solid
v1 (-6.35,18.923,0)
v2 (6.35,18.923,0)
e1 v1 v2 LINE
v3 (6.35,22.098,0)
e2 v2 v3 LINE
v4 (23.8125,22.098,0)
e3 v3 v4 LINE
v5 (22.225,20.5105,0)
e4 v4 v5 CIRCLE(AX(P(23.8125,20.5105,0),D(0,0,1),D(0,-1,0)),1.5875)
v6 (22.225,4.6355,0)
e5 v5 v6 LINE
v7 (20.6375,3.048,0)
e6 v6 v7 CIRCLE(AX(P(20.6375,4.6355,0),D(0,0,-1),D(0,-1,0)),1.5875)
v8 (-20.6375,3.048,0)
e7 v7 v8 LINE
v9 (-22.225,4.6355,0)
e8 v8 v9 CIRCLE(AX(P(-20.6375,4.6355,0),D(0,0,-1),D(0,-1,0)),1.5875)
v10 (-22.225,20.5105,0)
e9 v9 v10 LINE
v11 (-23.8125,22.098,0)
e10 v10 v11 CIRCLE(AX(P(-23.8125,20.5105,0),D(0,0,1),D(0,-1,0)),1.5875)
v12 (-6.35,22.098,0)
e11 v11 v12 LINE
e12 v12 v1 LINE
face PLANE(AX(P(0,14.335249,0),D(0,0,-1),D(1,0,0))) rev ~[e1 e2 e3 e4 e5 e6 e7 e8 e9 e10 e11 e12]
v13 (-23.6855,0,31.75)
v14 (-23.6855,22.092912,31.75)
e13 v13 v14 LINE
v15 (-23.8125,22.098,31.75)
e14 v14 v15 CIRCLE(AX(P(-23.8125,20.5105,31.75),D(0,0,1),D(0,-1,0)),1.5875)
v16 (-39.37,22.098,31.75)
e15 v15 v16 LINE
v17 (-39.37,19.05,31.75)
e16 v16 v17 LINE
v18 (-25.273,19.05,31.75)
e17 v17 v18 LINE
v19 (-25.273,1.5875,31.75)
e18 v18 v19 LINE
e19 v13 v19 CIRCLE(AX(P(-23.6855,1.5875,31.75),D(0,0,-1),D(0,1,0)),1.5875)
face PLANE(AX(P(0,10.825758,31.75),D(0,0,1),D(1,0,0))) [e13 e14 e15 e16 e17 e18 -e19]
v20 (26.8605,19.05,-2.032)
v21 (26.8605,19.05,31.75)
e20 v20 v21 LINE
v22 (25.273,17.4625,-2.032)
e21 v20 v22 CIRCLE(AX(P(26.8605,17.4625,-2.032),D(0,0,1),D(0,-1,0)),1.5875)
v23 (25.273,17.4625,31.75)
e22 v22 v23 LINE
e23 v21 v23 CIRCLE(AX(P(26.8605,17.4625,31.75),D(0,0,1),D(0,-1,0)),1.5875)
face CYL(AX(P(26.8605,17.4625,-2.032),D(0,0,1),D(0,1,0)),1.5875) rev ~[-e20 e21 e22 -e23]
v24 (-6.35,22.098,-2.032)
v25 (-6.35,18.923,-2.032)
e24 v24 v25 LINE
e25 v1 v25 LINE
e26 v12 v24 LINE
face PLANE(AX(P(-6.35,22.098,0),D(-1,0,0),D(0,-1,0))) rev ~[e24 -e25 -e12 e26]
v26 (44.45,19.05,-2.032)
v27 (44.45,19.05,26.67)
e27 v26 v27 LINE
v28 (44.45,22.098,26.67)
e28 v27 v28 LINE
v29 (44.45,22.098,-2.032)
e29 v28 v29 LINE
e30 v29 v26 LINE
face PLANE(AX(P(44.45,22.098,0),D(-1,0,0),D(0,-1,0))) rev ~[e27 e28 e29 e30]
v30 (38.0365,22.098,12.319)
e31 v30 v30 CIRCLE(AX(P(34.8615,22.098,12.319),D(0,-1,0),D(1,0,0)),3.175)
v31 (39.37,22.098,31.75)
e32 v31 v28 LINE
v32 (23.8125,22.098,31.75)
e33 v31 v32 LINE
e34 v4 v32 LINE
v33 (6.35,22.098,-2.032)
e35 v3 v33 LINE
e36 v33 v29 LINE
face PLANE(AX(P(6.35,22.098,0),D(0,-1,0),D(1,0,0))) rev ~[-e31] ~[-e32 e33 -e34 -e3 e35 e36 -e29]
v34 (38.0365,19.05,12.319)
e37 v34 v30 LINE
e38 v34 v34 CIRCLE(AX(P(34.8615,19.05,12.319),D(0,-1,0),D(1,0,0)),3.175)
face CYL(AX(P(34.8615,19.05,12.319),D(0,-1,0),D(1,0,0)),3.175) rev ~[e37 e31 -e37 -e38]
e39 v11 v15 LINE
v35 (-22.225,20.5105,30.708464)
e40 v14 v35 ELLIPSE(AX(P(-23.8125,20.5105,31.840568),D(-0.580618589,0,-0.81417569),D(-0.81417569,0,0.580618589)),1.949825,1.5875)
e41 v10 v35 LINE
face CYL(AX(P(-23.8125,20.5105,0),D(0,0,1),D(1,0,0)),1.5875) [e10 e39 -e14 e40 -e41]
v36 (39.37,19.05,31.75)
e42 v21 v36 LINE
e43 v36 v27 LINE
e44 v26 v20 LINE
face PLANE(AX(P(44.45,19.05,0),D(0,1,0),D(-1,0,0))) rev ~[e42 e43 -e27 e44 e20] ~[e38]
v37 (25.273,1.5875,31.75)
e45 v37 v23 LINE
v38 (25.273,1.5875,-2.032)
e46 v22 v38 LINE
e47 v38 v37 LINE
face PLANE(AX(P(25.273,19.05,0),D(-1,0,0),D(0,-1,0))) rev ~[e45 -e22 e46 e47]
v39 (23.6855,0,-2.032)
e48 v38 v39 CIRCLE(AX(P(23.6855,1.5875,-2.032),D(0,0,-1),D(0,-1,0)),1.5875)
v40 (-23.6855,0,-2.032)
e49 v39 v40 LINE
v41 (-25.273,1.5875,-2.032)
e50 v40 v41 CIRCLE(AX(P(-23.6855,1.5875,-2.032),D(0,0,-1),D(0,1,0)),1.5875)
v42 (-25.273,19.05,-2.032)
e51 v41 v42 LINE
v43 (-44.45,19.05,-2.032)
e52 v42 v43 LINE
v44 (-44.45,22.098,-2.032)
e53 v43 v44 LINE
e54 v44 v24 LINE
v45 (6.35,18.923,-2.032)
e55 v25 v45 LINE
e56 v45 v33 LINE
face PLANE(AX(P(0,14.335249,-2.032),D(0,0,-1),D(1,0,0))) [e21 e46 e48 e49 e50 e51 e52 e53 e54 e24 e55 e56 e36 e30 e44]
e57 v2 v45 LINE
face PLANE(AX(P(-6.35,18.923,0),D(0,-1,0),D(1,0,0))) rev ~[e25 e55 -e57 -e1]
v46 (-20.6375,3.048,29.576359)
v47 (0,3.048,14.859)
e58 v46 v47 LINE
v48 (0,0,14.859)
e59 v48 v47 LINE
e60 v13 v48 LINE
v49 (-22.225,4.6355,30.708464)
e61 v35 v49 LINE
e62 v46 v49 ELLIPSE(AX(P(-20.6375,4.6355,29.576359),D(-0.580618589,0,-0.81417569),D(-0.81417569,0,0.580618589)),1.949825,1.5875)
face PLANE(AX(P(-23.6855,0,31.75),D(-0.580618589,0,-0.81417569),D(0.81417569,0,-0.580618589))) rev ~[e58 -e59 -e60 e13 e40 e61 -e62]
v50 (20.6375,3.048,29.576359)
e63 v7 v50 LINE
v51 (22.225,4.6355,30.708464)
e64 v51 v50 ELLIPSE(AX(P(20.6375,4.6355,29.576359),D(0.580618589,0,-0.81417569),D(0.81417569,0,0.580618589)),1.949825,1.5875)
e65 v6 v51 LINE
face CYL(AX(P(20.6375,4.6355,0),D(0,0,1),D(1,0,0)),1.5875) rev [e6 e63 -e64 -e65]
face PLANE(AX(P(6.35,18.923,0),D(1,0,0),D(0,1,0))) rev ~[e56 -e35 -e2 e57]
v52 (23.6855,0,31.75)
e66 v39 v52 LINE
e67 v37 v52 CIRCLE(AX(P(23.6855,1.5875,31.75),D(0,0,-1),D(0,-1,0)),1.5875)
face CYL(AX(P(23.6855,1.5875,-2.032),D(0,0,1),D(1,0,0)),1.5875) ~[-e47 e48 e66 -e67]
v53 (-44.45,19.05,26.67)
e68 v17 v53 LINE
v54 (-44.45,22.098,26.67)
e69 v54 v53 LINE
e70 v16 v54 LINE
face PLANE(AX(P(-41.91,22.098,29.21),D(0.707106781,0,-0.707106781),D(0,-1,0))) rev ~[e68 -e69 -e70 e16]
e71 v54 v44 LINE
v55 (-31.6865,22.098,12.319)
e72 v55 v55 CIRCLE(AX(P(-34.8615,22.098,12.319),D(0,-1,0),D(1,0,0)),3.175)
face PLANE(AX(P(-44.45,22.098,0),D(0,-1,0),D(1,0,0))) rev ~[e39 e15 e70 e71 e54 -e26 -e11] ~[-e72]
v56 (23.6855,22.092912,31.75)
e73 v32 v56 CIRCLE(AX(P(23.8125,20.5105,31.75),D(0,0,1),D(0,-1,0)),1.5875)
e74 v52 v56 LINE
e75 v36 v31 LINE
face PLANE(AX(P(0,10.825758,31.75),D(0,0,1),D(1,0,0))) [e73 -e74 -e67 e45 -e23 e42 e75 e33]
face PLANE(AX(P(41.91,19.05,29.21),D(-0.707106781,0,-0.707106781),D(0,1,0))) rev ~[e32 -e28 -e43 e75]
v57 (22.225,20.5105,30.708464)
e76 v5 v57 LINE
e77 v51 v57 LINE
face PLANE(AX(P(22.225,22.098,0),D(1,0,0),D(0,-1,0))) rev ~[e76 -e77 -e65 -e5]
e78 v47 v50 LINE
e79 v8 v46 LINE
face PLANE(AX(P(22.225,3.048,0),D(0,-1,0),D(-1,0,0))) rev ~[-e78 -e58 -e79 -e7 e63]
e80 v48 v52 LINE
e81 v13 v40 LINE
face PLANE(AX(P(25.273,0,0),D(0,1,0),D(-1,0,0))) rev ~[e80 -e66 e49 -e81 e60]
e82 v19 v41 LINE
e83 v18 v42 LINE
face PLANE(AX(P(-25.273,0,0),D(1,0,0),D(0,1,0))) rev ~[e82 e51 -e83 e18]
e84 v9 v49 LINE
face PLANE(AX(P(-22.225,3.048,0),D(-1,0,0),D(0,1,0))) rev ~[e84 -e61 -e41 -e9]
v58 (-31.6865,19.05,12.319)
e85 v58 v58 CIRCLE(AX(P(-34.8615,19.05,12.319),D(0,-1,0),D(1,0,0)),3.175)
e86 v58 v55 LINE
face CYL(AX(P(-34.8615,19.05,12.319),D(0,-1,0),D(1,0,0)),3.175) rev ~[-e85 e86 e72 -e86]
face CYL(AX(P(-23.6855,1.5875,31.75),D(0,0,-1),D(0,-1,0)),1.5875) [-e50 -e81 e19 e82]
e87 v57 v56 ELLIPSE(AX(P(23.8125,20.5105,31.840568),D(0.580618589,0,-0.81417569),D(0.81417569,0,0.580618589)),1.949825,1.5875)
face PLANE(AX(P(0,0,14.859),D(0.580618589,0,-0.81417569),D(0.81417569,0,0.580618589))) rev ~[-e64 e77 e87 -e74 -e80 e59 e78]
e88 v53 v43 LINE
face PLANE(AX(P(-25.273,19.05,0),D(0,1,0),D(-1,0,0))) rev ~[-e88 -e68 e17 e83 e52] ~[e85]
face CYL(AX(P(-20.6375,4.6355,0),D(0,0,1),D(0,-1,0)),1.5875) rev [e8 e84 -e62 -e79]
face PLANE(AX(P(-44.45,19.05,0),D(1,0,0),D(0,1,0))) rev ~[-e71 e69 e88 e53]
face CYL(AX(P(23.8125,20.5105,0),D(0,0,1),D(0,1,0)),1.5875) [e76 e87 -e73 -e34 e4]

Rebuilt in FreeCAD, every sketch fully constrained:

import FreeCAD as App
import Part
import Sketcher
from FreeCAD import Vector
Q = App.Units.Quantity


def edges_at(feature, points):
    """Names of the edges that pass closest to the given points."""
    edges = feature.Shape.Edges
    near = lambda p: min(range(len(edges)), key=lambda i: edges[i].distToShape(Part.Vertex(*p))[0])
    return sorted({f"Edge{near(p) + 1}" for p in points})


def add_polygon(sketch, points):
    """Adds a closed chain of lines whose ends are joined by coincident constraints."""
    first, n = sketch.GeometryCount, len(points)
    for a, b in zip(points, points[1:] + points[:1]):
        sketch.addGeometry(Part.LineSegment(App.Vector(*a, 0), App.Vector(*b, 0)), False)
    for i in range(n):
        sketch.addConstraint(Sketcher.Constraint("Coincident", first + i, 2, first + (i + 1) % n, 1))

doc = App.newDocument("Part")
body = doc.addObject("PartDesign::Body", "Body")

sketch1 = doc.addObject("Sketcher::SketchObject", "Sketch")
body.addObject(sketch1)
sketch1.AttachmentSupport = (doc.XY_Plane, [""])
sketch1.MapMode = "FlatFace"
add_polygon(sketch1, [(-25.3, 19.1), (-25.3, 0), (25.3, 0), (25.3, 19.1), (44.5, 19.1), (44.5, 22.1), (22.2, 22.1), (22.2, 3), (-22.2, 3), (-22.2, 22.1), (-44.5, 22.1), (-44.5, 19.1)])
sketch1.addConstraint(Sketcher.Constraint("Vertical", 0))
sketch1.addConstraint(Sketcher.Constraint("Horizontal", 1))
sketch1.addConstraint(Sketcher.Constraint("Vertical", 2))
sketch1.addConstraint(Sketcher.Constraint("Horizontal", 3))
sketch1.addConstraint(Sketcher.Constraint("Vertical", 4))
sketch1.addConstraint(Sketcher.Constraint("Horizontal", 5))
sketch1.addConstraint(Sketcher.Constraint("Vertical", 6))
sketch1.addConstraint(Sketcher.Constraint("Horizontal", 7))
sketch1.addConstraint(Sketcher.Constraint("Vertical", 8))
sketch1.addConstraint(Sketcher.Constraint("Horizontal", 9))
sketch1.addConstraint(Sketcher.Constraint("Vertical", 10))
sketch1.addConstraint(Sketcher.Constraint("Horizontal", 11))
sketch1.addConstraint(Sketcher.Constraint("Symmetric", 0, 2, 1, 2, -1, 1))
sketch1.addConstraint(Sketcher.Constraint("Symmetric", 5, 2, 8, 2, -2))
sketch1.addConstraint(Sketcher.Constraint("Symmetric", 3, 2, 10, 2, -2))
sketch1.addConstraint(Sketcher.Constraint("Equal", 2, 6))
sketch1.addConstraint(Sketcher.Constraint("DistanceX", 1, 1, 1, 2, Q("1.99 in")))
sketch1.addConstraint(Sketcher.Constraint("DistanceX", 7, 2, 7, 1, Q("1.75 in")))
sketch1.addConstraint(Sketcher.Constraint("DistanceY", 0, 2, 0, 1, Q("0.75 in")))
sketch1.addConstraint(Sketcher.Constraint("DistanceY", 4, 1, 4, 2, Q("0.12 in")))
sketch1.addConstraint(Sketcher.Constraint("DistanceX", 3, 1, 3, 2, Q("0.755 in")))
pad1 = doc.addObject("PartDesign::Pad", "Pad")
body.addObject(pad1)
pad1.Profile = sketch1
pad1.Length = Q("1.25 in")

sketch2 = doc.addObject("Sketcher::SketchObject", "Sketch001")
body.addObject(sketch2)
sketch2.AttachmentSupport = (doc.XY_Plane, [""])
sketch2.MapMode = "FlatFace"
add_polygon(sketch2, [(25.3, 0), (-25.3, 0), (-25.3, 19.1), (-44.5, 19.1), (-44.5, 22.1), (-6.3, 22.1), (-6.3, 18.9), (6.3, 18.9), (6.3, 22.1), (44.5, 22.1), (44.5, 19.1), (25.3, 19.1)])
sketch2.addConstraint(Sketcher.Constraint("Horizontal", 0))
sketch2.addConstraint(Sketcher.Constraint("Vertical", 1))
sketch2.addConstraint(Sketcher.Constraint("Horizontal", 2))
sketch2.addConstraint(Sketcher.Constraint("Vertical", 3))
sketch2.addConstraint(Sketcher.Constraint("Horizontal", 4))
sketch2.addConstraint(Sketcher.Constraint("Vertical", 5))
sketch2.addConstraint(Sketcher.Constraint("Horizontal", 6))
sketch2.addConstraint(Sketcher.Constraint("Vertical", 7))
sketch2.addConstraint(Sketcher.Constraint("Horizontal", 8))
sketch2.addConstraint(Sketcher.Constraint("Vertical", 9))
sketch2.addConstraint(Sketcher.Constraint("Horizontal", 10))
sketch2.addConstraint(Sketcher.Constraint("Vertical", 11))
sketch2.addConstraint(Sketcher.Constraint("Symmetric", 0, 2, 11, 2, -1, 1))
sketch2.addConstraint(Sketcher.Constraint("Symmetric", 4, 2, 7, 2, -2))
sketch2.addConstraint(Sketcher.Constraint("Symmetric", 2, 2, 9, 2, -2))
sketch2.addConstraint(Sketcher.Constraint("DistanceX", 4, 1, 4, 2, Q("1.5 in")))
sketch2.addConstraint(Sketcher.Constraint("DistanceX", 6, 1, 6, 2, Q("0.5 in")))
sketch2.addConstraint(Sketcher.Constraint("DistanceX", 0, 2, 0, 1, Q("1.99 in")))
sketch2.addConstraint(Sketcher.Constraint("DistanceY", 1, 1, 1, 2, Q("0.75 in")))
sketch2.addConstraint(Sketcher.Constraint("DistanceY", 3, 1, 3, 2, Q("0.12 in")))
sketch2.addConstraint(Sketcher.Constraint("DistanceY", 5, 2, 5, 1, Q("0.125 in")))
pad2 = doc.addObject("PartDesign::Pad", "Pad001")
body.addObject(pad2)
pad2.Profile = sketch2
pad2.Length = Q("0.08 in")
pad2.Reversed = True
doc.recompute()

chamfer = doc.addObject("PartDesign::Chamfer", "Chamfer")
body.addObject(chamfer)
chamfer.Base = (pad2, edges_at(pad2, [(44.45, 20.574, 31.75), (-44.45, 20.574, 31.75)]))
chamfer.Size = Q("0.2 in")

sketch3 = doc.addObject("Sketcher::SketchObject", "Sketch002")
body.addObject(sketch3)
sketch3.AttachmentSupport = (doc.XZ_Plane, [""])
sketch3.MapMode = "FlatFace"
sketch3.AttachmentOffset = App.Placement(Vector(0, 0, -0.75 * 25.4), App.Rotation())
sketch3.addGeometry(Part.Circle(Vector(-34.9, 12.3, 0), Vector(0, 0, 1), 3.2), False)
sketch3.addGeometry(Part.Circle(Vector(34.9, 12.3, 0), Vector(0, 0, 1), 3.2), False)
sketch3.addConstraint(Sketcher.Constraint("Equal", 0, 1))
sketch3.addConstraint(Sketcher.Constraint("Symmetric", 0, 3, 1, 3, -2))
sketch3.addConstraint(Sketcher.Constraint("Diameter", 0, Q("0.25 in")))
sketch3.addConstraint(Sketcher.Constraint("DistanceY", -1, 1, 0, 3, Q("0.485 in")))
sketch3.addConstraint(Sketcher.Constraint("DistanceX", 0, 3, 1, 3, Q("2.745 in")))
pocket1 = doc.addObject("PartDesign::Pocket", "Pocket")
body.addObject(pocket1)
pocket1.Profile = sketch3
pocket1.Type = "ThroughAll"
doc.recompute()

fillet = doc.addObject("PartDesign::Fillet", "Fillet")
body.addObject(fillet)
fillet.Base = (pocket1, edges_at(pocket1, [
    (25.273, 0, 14.859),
    (-25.273, 0, 14.859),
    (25.273, 19.05, 14.859),
    (22.225, 3.048, 15.875),
    (22.225, 22.098, 15.875),
    (-22.225, 3.048, 15.875),
    (-22.225, 22.098, 15.875),
]))
fillet.Radius = Q("0.0625 in")

sketch4 = doc.addObject("Sketcher::SketchObject", "Sketch003")
body.addObject(sketch4)
sketch4.AttachmentSupport = (doc.XZ_Plane, [""])
sketch4.MapMode = "FlatFace"
add_polygon(sketch4, [(24, 32), (-24, 32), (0, 15)])
sketch4.addConstraint(Sketcher.Constraint("Horizontal", 0))
sketch4.addConstraint(Sketcher.Constraint("PointOnObject", 1, 2, -2))
sketch4.addConstraint(Sketcher.Constraint("Equal", 1, 2))
sketch4.addConstraint(Sketcher.Constraint("DistanceX", 0, 2, 0, 1, Q("1.865 in")))
sketch4.addConstraint(Sketcher.Constraint("DistanceY", -1, 1, 0, 2, Q("1.25 in")))
sketch4.addConstraint(Sketcher.Constraint("DistanceY", -1, 1, 1, 2, Q("0.585 in")))
pocket2 = doc.addObject("PartDesign::Pocket", "Pocket001")
body.addObject(pocket2)
pocket2.Profile = sketch4
pocket2.Type = "ThroughAll"

doc.recompute()
